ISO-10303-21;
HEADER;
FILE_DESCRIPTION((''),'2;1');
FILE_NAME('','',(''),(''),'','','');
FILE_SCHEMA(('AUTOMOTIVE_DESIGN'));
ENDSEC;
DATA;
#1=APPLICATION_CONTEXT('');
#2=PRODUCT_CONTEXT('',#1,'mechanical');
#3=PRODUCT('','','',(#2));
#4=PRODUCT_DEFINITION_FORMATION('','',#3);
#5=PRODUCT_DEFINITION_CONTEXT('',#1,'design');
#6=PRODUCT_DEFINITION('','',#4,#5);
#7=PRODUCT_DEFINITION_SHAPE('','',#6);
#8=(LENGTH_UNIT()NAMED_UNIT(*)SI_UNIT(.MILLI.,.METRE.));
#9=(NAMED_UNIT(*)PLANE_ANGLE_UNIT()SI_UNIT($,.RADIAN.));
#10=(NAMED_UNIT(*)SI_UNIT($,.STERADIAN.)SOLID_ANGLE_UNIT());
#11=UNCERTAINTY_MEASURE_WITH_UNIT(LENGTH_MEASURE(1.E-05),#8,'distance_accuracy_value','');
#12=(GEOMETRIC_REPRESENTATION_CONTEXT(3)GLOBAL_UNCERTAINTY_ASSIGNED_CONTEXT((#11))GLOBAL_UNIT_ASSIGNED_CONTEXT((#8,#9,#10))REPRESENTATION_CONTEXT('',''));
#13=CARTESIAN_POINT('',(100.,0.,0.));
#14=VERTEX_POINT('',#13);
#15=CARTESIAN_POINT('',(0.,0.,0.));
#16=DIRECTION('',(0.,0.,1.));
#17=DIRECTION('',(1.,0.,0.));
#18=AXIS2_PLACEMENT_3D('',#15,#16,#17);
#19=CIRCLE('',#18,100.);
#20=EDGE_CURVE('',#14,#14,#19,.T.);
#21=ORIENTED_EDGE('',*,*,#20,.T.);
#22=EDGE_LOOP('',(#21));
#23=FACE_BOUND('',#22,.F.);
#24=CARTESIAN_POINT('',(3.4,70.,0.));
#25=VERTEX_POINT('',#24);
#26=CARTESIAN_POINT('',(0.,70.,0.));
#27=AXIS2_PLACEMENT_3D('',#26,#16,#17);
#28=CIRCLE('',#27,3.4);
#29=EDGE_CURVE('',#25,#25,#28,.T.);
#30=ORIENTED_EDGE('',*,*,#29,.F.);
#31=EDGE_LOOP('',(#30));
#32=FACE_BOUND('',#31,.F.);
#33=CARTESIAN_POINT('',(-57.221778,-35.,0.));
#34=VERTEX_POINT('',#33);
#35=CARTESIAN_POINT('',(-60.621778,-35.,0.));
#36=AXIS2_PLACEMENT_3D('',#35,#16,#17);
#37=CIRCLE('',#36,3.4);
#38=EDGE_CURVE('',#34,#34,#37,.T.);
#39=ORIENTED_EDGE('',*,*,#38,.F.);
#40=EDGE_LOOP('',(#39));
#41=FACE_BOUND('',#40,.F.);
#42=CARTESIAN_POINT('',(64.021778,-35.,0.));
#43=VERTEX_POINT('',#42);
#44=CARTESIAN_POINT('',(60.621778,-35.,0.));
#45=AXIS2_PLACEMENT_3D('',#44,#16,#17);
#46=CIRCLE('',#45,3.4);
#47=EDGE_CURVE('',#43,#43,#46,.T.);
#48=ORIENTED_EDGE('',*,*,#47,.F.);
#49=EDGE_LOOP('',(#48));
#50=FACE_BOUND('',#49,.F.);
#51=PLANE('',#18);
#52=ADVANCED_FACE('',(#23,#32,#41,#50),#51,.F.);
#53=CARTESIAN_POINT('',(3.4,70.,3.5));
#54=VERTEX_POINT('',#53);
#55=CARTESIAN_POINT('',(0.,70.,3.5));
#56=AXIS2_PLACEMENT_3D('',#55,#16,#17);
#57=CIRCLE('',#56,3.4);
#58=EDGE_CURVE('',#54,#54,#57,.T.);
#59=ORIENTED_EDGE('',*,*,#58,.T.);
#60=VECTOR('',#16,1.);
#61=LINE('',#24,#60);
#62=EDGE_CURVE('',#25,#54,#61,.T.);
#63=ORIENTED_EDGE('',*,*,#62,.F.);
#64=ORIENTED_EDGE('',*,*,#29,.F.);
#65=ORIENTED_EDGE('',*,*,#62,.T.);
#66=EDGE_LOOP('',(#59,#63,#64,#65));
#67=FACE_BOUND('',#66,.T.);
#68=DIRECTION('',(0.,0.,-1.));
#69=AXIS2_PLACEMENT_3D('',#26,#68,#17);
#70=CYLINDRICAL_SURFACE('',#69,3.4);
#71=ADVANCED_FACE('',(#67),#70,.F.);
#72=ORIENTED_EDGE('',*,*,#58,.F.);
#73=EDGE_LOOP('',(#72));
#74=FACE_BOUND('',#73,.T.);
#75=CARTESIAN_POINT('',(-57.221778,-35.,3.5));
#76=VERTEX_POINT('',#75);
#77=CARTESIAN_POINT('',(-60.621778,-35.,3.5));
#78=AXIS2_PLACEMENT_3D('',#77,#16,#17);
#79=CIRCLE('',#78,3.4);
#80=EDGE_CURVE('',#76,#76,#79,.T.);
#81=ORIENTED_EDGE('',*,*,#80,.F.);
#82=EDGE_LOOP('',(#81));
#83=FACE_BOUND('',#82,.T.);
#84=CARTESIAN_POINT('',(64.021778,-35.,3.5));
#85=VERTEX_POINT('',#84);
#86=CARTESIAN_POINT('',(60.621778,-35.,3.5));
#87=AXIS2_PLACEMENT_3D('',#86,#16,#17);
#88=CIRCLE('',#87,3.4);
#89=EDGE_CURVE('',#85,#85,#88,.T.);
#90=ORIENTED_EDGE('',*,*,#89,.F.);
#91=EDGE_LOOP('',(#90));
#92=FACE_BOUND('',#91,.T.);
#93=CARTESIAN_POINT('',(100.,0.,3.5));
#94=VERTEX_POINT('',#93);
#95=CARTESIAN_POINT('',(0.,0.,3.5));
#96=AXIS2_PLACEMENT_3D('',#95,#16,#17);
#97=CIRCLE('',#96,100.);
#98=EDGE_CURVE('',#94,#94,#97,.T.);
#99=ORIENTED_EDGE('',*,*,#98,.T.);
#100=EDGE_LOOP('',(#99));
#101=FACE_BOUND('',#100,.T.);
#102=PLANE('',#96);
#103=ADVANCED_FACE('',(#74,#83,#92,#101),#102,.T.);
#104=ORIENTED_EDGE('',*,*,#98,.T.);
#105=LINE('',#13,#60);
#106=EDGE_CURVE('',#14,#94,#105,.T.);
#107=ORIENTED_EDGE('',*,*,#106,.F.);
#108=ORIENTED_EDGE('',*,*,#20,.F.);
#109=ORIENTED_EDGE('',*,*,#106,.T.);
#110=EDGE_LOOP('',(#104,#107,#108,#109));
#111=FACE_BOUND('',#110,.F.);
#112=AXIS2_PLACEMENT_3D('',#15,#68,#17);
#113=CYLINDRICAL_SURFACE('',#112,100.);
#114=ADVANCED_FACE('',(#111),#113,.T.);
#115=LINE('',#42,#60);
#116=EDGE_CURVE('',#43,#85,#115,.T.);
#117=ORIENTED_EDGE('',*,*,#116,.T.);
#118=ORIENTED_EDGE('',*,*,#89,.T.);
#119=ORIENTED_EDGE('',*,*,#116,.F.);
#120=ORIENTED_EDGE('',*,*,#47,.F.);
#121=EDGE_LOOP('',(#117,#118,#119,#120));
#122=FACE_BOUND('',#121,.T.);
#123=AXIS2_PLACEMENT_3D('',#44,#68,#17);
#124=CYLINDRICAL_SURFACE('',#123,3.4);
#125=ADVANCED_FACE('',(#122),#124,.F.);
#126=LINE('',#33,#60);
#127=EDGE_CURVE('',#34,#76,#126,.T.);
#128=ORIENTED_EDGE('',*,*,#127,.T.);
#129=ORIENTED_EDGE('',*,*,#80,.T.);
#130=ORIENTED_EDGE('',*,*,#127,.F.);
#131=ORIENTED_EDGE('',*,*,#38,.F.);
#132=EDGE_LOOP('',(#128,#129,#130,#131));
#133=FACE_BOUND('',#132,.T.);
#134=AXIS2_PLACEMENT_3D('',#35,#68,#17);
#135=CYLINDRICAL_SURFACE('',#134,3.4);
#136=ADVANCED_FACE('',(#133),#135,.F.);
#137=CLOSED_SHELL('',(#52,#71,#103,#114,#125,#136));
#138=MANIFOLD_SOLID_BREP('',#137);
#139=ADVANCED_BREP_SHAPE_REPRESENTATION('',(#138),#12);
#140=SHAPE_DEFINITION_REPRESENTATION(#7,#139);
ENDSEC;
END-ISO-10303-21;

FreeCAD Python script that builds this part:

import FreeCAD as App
import Part
import Sketcher
from FreeCAD import Vector

doc = App.newDocument("Part")
params = doc.addObject("Spreadsheet::Sheet", "Params")
for row, (alias, value) in enumerate([
    ("sketch1_diameter", "200 mm"),
    ("sketch1_diameter2", "6.8 mm"),
    ("pad1_length", "3.5 mm"),
], start=1):
    params.set(f"A{row}", alias)
    params.set(f"B{row}", "=" + value)
    params.setAlias(f"B{row}", alias)

body = doc.addObject("PartDesign::Body", "Body")

# Sketch on XY plane
sketch1 = body.newObject("Sketcher::SketchObject", "Sketch")
sketch1.AttachmentSupport = (doc.getObject("XY_Plane"), [""])
sketch1.MapMode = "FlatFace"
sketch1.addGeometry([
    Part.Circle(Vector(0, 0, 0), Vector(0, 0, 1), 100),
    Part.Circle(Vector(-60.621778, -35, 0), Vector(0, 0, 1), 3.4),
    Part.Circle(Vector(60.621778, -35, 0), Vector(0, 0, 1), 3.4),
    Part.Circle(Vector(0, 70, 0), Vector(0, 0, 1), 3.4),
], False)
sketch1.addConstraint([
    Sketcher.Constraint("Coincident", 0, 3, -1, 1),
    Sketcher.Constraint("Equal", 1, 2),
    Sketcher.Constraint("Equal", 2, 3),
    Sketcher.Constraint("Symmetric", 1, 3, 2, 3, -2),
    Sketcher.Constraint("PointOnObject", 3, 3, -2),
    Sketcher.Constraint("Diameter", 0, 200.0),
    Sketcher.Constraint("Diameter", 1, 6.8),
    Sketcher.Constraint("DistanceY", 1, 3, -1, 1, 35.0),
    Sketcher.Constraint("DistanceY", -1, 1, 3, 3, 70.0),
    Sketcher.Constraint("DistanceX", 1, 3, -1, 1, 60.621778),
])
sketch1.setExpression("Constraints[5]", "Params.sketch1_diameter")
sketch1.setExpression("Constraints[6]", "Params.sketch1_diameter2")
pad1 = body.newObject("PartDesign::Pad", "Pad")
pad1.Profile = sketch1
pad1.setExpression("Length", "Params.pad1_length")

doc.recompute()
